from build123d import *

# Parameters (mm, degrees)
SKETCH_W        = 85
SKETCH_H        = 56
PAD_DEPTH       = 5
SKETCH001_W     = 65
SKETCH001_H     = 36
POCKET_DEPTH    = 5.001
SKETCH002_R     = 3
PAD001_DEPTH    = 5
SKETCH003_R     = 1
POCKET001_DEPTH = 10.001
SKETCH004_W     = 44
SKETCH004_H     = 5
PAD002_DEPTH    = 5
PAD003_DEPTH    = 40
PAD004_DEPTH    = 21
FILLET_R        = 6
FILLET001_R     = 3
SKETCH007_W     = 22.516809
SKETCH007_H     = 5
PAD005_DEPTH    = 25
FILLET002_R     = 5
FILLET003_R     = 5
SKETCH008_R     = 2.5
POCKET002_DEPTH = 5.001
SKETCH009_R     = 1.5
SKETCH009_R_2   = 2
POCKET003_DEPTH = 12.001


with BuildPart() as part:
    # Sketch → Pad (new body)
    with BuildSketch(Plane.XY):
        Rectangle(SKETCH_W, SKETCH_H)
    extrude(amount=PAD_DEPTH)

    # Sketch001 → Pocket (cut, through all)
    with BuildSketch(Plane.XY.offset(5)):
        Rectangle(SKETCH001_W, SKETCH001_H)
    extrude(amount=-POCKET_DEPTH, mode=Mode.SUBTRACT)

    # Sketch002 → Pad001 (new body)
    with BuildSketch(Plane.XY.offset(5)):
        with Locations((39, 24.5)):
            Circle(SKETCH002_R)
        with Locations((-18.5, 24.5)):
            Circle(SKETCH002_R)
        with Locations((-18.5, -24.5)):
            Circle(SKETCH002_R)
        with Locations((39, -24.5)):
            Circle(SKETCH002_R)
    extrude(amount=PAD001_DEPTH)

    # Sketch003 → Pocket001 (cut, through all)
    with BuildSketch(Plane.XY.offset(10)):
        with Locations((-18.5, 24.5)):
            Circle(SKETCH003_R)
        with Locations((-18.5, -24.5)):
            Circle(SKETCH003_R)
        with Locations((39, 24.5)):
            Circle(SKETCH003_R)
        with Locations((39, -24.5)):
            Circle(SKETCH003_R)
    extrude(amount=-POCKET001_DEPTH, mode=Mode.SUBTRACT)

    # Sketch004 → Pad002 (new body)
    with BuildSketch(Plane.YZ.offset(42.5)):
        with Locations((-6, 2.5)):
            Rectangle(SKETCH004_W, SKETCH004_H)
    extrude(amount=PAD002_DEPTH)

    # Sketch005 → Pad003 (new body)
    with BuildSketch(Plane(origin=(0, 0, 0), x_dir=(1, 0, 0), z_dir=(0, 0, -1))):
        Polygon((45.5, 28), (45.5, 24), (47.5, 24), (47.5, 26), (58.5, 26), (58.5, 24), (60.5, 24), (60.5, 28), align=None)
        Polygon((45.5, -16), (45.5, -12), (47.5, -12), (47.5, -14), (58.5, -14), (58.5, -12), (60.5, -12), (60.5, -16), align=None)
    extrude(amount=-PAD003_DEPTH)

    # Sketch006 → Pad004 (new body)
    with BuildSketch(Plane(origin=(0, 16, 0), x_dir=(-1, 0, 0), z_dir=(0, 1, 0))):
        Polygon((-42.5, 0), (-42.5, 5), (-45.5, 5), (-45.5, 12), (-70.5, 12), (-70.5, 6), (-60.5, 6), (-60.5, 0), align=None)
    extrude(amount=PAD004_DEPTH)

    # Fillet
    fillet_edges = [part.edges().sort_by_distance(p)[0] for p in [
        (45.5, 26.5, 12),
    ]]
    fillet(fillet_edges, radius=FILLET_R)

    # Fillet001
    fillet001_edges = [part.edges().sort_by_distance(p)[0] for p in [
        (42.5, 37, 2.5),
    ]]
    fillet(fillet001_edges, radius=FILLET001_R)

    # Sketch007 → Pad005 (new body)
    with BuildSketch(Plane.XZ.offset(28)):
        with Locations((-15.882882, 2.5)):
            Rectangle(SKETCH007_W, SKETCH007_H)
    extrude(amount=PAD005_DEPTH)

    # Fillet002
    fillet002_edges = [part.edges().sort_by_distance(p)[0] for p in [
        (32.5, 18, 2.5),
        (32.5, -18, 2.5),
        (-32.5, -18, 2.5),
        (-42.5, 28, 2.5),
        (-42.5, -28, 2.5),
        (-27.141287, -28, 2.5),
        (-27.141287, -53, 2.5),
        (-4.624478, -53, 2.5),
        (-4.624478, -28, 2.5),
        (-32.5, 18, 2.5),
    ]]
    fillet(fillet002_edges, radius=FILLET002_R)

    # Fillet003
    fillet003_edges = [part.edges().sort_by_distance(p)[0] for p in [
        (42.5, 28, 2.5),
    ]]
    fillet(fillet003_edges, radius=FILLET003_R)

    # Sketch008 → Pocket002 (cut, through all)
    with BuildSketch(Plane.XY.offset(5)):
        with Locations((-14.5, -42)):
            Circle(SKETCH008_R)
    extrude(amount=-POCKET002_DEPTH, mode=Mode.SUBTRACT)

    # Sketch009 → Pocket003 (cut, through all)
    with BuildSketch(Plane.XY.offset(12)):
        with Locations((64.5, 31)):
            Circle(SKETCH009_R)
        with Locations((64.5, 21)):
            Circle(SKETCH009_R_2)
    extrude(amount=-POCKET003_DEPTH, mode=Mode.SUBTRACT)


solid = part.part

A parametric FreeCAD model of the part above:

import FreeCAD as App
import Part
import Sketcher

V = App.Vector


def edges_at(feature, points):
    """Names of the edges that pass closest to the given points."""
    edges = feature.Shape.Edges
    near = lambda p: min(range(len(edges)), key=lambda i: edges[i].distToShape(Part.Vertex(*p))[0])
    return sorted({f"Edge{near(p) + 1}" for p in points})


def add_polygon(sketch, points):
    """Adds a closed chain of lines whose ends are joined by coincident constraints."""
    first, n = sketch.GeometryCount, len(points)
    for a, b in zip(points, points[1:] + points[:1]):
        sketch.addGeometry(Part.LineSegment(App.Vector(*a, 0), App.Vector(*b, 0)), False)
    for i in range(n):
        sketch.addConstraint(Sketcher.Constraint("Coincident", first + i, 2, first + (i + 1) % n, 1))

doc = App.newDocument("Part")
body = doc.addObject("PartDesign::Body", "Body")

# Sketch on XY plane
sketch1 = body.newObject("Sketcher::SketchObject", "Sketch")
sketch1.AttachmentSupport = (doc.getObject("XY_Plane"), [""])
sketch1.MapMode = "FlatFace"
add_polygon(sketch1, [(-42.5, 28), (-42.5, -28), (42.5, -28), (42.5, 28)])  # lines 0-3
sketch1.addConstraint([
    Sketcher.Constraint("Vertical", 0),
    Sketcher.Constraint("Horizontal", 1),
    Sketcher.Constraint("Vertical", 2),
    Sketcher.Constraint("Horizontal", 3),
    Sketcher.Constraint("Symmetric", 0, 2, 2, 2, -1, 1),
    Sketcher.Constraint("DistanceX", 1, 1, 1, 2, 85.0),
    Sketcher.Constraint("DistanceY", 0, 2, 0, 1, 56.0),
])
pad1 = body.newObject("PartDesign::Pad", "Pad")
pad1.Profile = sketch1
pad1.Length = 5

# Sketch on XY plane
sketch2 = body.newObject("Sketcher::SketchObject", "Sketch001")
sketch2.AttachmentSupport = (doc.getObject("XY_Plane"), [""])
sketch2.MapMode = "FlatFace"
sketch2.AttachmentOffset = App.Placement(V(0, 0, 5), App.Rotation())
add_polygon(sketch2, [(-32.5, 18), (-32.5, -18), (32.5, -18), (32.5, 18)])  # lines 0-3
sketch2.addConstraint([
    Sketcher.Constraint("Vertical", 0),
    Sketcher.Constraint("Horizontal", 1),
    Sketcher.Constraint("Vertical", 2),
    Sketcher.Constraint("Horizontal", 3),
    Sketcher.Constraint("Symmetric", 0, 2, 2, 2, -1, 1),
    Sketcher.Constraint("DistanceX", 1, 1, 1, 2, 65.0),
    Sketcher.Constraint("DistanceY", 0, 2, 0, 1, 36.0),
])
pocket1 = body.newObject("PartDesign::Pocket", "Pocket")
pocket1.Profile = sketch2
pocket1.Type = "ThroughAll"

# Sketch on XY plane
sketch3 = body.newObject("Sketcher::SketchObject", "Sketch002")
sketch3.AttachmentSupport = (doc.getObject("XY_Plane"), [""])
sketch3.MapMode = "FlatFace"
sketch3.AttachmentOffset = App.Placement(V(0, 0, 5), App.Rotation())
sketch3.addGeometry([
    Part.Circle(V(39, 24.5, 0), V(0, 0, 1), 3),
    Part.Circle(V(-18.5, 24.5, 0), V(0, 0, 1), 3),
    Part.Circle(V(-18.5, -24.5, 0), V(0, 0, 1), 3),
    Part.Circle(V(39, -24.5, 0), V(0, 0, 1), 3),
], False)
sketch3.addConstraint([
    Sketcher.Constraint("Equal", 0, 1),
    Sketcher.Constraint("Equal", 1, 2),
    Sketcher.Constraint("Equal", 2, 3),
    Sketcher.Constraint("Symmetric", 1, 3, 2, 3, -1),
    Sketcher.Constraint("Symmetric", 0, 3, 3, 3, -1),
    Sketcher.Constraint("Horizontal", 0, 3, 1, 3),
    Sketcher.Constraint("Diameter", 0, 6.0),
    Sketcher.Constraint("DistanceX", -1, 1, 0, 3, 39.0),
    Sketcher.Constraint("DistanceY", 2, 3, 1, 3, 49.0),
    Sketcher.Constraint("DistanceX", 1, 3, -1, 1, 18.5),
])
pad2 = body.newObject("PartDesign::Pad", "Pad001")
pad2.Profile = sketch3
pad2.Length = 5

# Sketch on XY plane
sketch4 = body.newObject("Sketcher::SketchObject", "Sketch003")
sketch4.AttachmentSupport = (doc.getObject("XY_Plane"), [""])
sketch4.MapMode = "FlatFace"
sketch4.AttachmentOffset = App.Placement(V(0, 0, 10), App.Rotation())
sketch4.addGeometry([
    Part.Circle(V(-18.5, 24.5, 0), V(0, 0, 1), 1),
    Part.Circle(V(-18.5, -24.5, 0), V(0, 0, 1), 1),
    Part.Circle(V(39, 24.5, 0), V(0, 0, 1), 1),
    Part.Circle(V(39, -24.5, 0), V(0, 0, 1), 1),
], False)
sketch4.addConstraint([
    Sketcher.Constraint("Equal", 0, 1),
    Sketcher.Constraint("Equal", 1, 2),
    Sketcher.Constraint("Equal", 2, 3),
    Sketcher.Constraint("Symmetric", 0, 3, 1, 3, -1),
    Sketcher.Constraint("Symmetric", 2, 3, 3, 3, -1),
    Sketcher.Constraint("Horizontal", 0, 3, 2, 3),
    Sketcher.Constraint("Diameter", 0, 2.0),
    Sketcher.Constraint("DistanceX", -1, 1, 2, 3, 39.0),
    Sketcher.Constraint("DistanceY", 1, 3, 0, 3, 49.0),
    Sketcher.Constraint("DistanceX", 0, 3, -1, 1, 18.5),
])
pocket2 = body.newObject("PartDesign::Pocket", "Pocket001")
pocket2.Profile = sketch4
pocket2.Type = "ThroughAll"

# Sketch on YZ plane
sketch5 = body.newObject("Sketcher::SketchObject", "Sketch004")
sketch5.AttachmentSupport = (doc.getObject("YZ_Plane"), [""])
sketch5.MapMode = "FlatFace"
sketch5.AttachmentOffset = App.Placement(V(0, 0, 42.5), App.Rotation())
add_polygon(sketch5, [(-28, 5), (-28, 0), (16, 0), (16, 5)])  # lines 0-3
sketch5.addConstraint([
    Sketcher.Constraint("Vertical", 0),
    Sketcher.Constraint("Horizontal", 1),
    Sketcher.Constraint("Vertical", 2),
    Sketcher.Constraint("Horizontal", 3),
    Sketcher.Constraint("PointOnObject", 0, 2, -1),
    Sketcher.Constraint("DistanceX", 1, 1, 1, 2, 44.0),
    Sketcher.Constraint("DistanceY", 0, 2, 0, 1, 5.0),
    Sketcher.Constraint("DistanceX", 0, 2, -1, 1, 28.0),
])
pad3 = body.newObject("PartDesign::Pad", "Pad002")
pad3.Profile = sketch5
pad3.Length = 5

# Sketch on XY plane
sketch6 = body.newObject("Sketcher::SketchObject", "Sketch005")
sketch6.AttachmentSupport = (doc.getObject("XY_Plane"), [""])
sketch6.MapMode = "FlatFace"
add_polygon(sketch6, [(45.5, -28), (45.5, -24), (47.5, -24), (47.5, -26), (58.5, -26), (58.5, -24), (60.5, -24), (60.5, -28)])  # lines 0-7
add_polygon(sketch6, [(45.5, 12), (45.5, 16), (60.5, 16), (60.5, 12), (58.5, 12), (58.5, 14), (47.5, 14), (47.5, 12)])  # lines 8-15
sketch6.addConstraint([
    Sketcher.Constraint("Vertical", 0),
    Sketcher.Constraint("Horizontal", 1),
    Sketcher.Constraint("Vertical", 2),
    Sketcher.Constraint("Horizontal", 3),
    Sketcher.Constraint("Vertical", 4),
    Sketcher.Constraint("Horizontal", 5),
    Sketcher.Constraint("Vertical", 6),
    Sketcher.Constraint("Horizontal", 7),
    Sketcher.Constraint("Vertical", 8),
    Sketcher.Constraint("Horizontal", 9),
    Sketcher.Constraint("Vertical", 10),
    Sketcher.Constraint("Horizontal", 11),
    Sketcher.Constraint("Vertical", 12),
    Sketcher.Constraint("Horizontal", 13),
    Sketcher.Constraint("Vertical", 14),
    Sketcher.Constraint("Horizontal", 15),
    Sketcher.Constraint("Horizontal", 1, 2, 4, 2),
    Sketcher.Constraint("Horizontal", 11, 2, 14, 2),
    Sketcher.Constraint("Vertical", 7, 2, 8, 2),
    Sketcher.Constraint("Vertical", 6, 2, 9, 2),
    Sketcher.Constraint("Vertical", 4, 2, 11, 2),
    Sketcher.Constraint("Vertical", 2, 2, 13, 2),
    Sketcher.Constraint("Equal", 1, 5),
    Sketcher.Constraint("Equal", 15, 2),
    Sketcher.Constraint("Equal", 6, 8),
    Sketcher.Constraint("Equal", 4, 12),
    Sketcher.Constraint("DistanceX", 1, 1, 1, 2, 2.0),
    Sketcher.Constraint("DistanceX", 3, 1, 3, 2, 11.0),
    Sketcher.Constraint("DistanceY", 0, 1, 0, 2, 4.0),
    Sketcher.Constraint("DistanceY", 0, 2, -1, 1, 24.0),
    Sketcher.Constraint("DistanceY", -1, 1, 8, 2, 16.0),
    Sketcher.Constraint("DistanceX", -1, 1, 0, 2, 45.5),
])
pad4 = body.newObject("PartDesign::Pad", "Pad003")
pad4.Profile = sketch6
pad4.Length = 40

# Sketch on XZ plane
sketch7 = body.newObject("Sketcher::SketchObject", "Sketch006")
sketch7.AttachmentSupport = (doc.getObject("XZ_Plane"), [""])
sketch7.MapMode = "FlatFace"
sketch7.AttachmentOffset = App.Placement(V(0, 0, -16), App.Rotation())
add_polygon(sketch7, [(42.5, 0), (42.5, 5), (45.5, 5), (45.5, 12), (70.5, 12), (70.5, 6), (60.5, 6), (60.5, 0)])  # lines 0-7
sketch7.addConstraint([
    Sketcher.Constraint("Vertical", 0),
    Sketcher.Constraint("Horizontal", 1),
    Sketcher.Constraint("Vertical", 2),
    Sketcher.Constraint("Horizontal", 3),
    Sketcher.Constraint("Vertical", 4),
    Sketcher.Constraint("Horizontal", 5),
    Sketcher.Constraint("Vertical", 6),
    Sketcher.Constraint("Horizontal", 7),
    Sketcher.Constraint("PointOnObject", 6, 2, -1),
    Sketcher.Constraint("Equal", 4, 6),
    Sketcher.Constraint("DistanceX", 1, 1, 1, 2, 3.0),
    Sketcher.Constraint("DistanceX", 3, 1, 3, 2, 25.0),
    Sketcher.Constraint("DistanceX", 5, 2, 5, 1, 10.0),
    Sketcher.Constraint("DistanceY", 0, 1, 0, 2, 5.0),
    Sketcher.Constraint("DistanceY", 2, 1, 2, 2, 7.0),
    Sketcher.Constraint("DistanceX", -1, 1, 0, 2, 42.5),
])
pad5 = body.newObject("PartDesign::Pad", "Pad004")
pad5.Profile = sketch7
pad5.Length = 21
pad5.Reversed = True
doc.recompute()

fillet = body.newObject("PartDesign::Fillet", "Fillet")
fillet.Base = (pad5, edges_at(pad5, [(45.5, 26.5, 12)]))
fillet.Radius = 6
doc.recompute()

fillet2 = body.newObject("PartDesign::Fillet", "Fillet001")
fillet2.Base = (fillet, edges_at(fillet, [(42.5, 37, 2.5)]))
fillet2.Radius = 3

# Sketch on XZ plane
sketch8 = body.newObject("Sketcher::SketchObject", "Sketch007")
sketch8.AttachmentSupport = (doc.getObject("XZ_Plane"), [""])
sketch8.MapMode = "FlatFace"
sketch8.AttachmentOffset = App.Placement(V(0, 0, 28), App.Rotation())
add_polygon(sketch8, [(-27.141286, 5), (-27.141286, 0), (-4.624478, 0), (-4.624478, 5)])  # lines 0-3
sketch8.addConstraint([
    Sketcher.Constraint("Vertical", 0),
    Sketcher.Constraint("Horizontal", 1),
    Sketcher.Constraint("Vertical", 2),
    Sketcher.Constraint("Horizontal", 3),
    Sketcher.Constraint("PointOnObject", 0, 2, -1),
    Sketcher.Constraint("DistanceY", 0, 2, 0, 1, 5.0),
    Sketcher.Constraint("DistanceX", 1, 1, 1, 2, 22.516809),
    Sketcher.Constraint("DistanceX", 0, 2, -1, 1, 27.141286),
])
pad6 = body.newObject("PartDesign::Pad", "Pad005")
pad6.Profile = sketch8
pad6.Length = 25
doc.recompute()

fillet3 = body.newObject("PartDesign::Fillet", "Fillet002")
fillet3.Base = (pad6, edges_at(pad6, [
    (32.5, 18, 2.5),
    (32.5, -18, 2.5),
    (-32.5, -18, 2.5),
    (-42.5, 28, 2.5),
    (-42.5, -28, 2.5),
    (-27.141, -28, 2.5),
    (-27.141, -53, 2.5),
    (-4.624, -53, 2.5),
    (-4.624, -28, 2.5),
    (-32.5, 18, 2.5),
]))
fillet3.Radius = 5
doc.recompute()

fillet4 = body.newObject("PartDesign::Fillet", "Fillet003")
fillet4.Base = (fillet3, edges_at(fillet3, [(42.5, 28, 2.5)]))
fillet4.Radius = 5

# Sketch on XY plane
sketch9 = body.newObject("Sketcher::SketchObject", "Sketch008")
sketch9.AttachmentSupport = (doc.getObject("XY_Plane"), [""])
sketch9.MapMode = "FlatFace"
sketch9.AttachmentOffset = App.Placement(V(0, 0, 5), App.Rotation())
sketch9.addGeometry(Part.Circle(V(-14.5, -42, 0), V(0, 0, 1), 2.5), False)
sketch9.addConstraint([
    Sketcher.Constraint("Diameter", 0, 5.0),
    Sketcher.Constraint("DistanceY", 0, 3, -1, 1, 42.0),
    Sketcher.Constraint("DistanceX", 0, 3, -1, 1, 14.5),
])
pocket3 = body.newObject("PartDesign::Pocket", "Pocket002")
pocket3.Profile = sketch9
pocket3.Type = "ThroughAll"

# Sketch on XY plane
sketch10 = body.newObject("Sketcher::SketchObject", "Sketch009")
sketch10.AttachmentSupport = (doc.getObject("XY_Plane"), [""])
sketch10.MapMode = "FlatFace"
sketch10.AttachmentOffset = App.Placement(V(0, 0, 12), App.Rotation())
sketch10.addGeometry([
    Part.Circle(V(64.5, 31, 0), V(0, 0, 1), 1.5),
    Part.Circle(V(64.5, 21, 0), V(0, 0, 1), 2),
], False)
sketch10.addConstraint([
    Sketcher.Constraint("Vertical", 0, 3, 1, 3),
    Sketcher.Constraint("Diameter", 0, 3.0),
    Sketcher.Constraint("Diameter", 1, 4.0),
    Sketcher.Constraint("DistanceY", -1, 1, 0, 3, 31.0),
    Sketcher.Constraint("DistanceY", -1, 1, 1, 3, 21.0),
    Sketcher.Constraint("DistanceX", -1, 1, 0, 3, 64.5),
])
pocket4 = body.newObject("PartDesign::Pocket", "Pocket003")
pocket4.Profile = sketch10
pocket4.Type = "ThroughAll"

doc.recompute()
